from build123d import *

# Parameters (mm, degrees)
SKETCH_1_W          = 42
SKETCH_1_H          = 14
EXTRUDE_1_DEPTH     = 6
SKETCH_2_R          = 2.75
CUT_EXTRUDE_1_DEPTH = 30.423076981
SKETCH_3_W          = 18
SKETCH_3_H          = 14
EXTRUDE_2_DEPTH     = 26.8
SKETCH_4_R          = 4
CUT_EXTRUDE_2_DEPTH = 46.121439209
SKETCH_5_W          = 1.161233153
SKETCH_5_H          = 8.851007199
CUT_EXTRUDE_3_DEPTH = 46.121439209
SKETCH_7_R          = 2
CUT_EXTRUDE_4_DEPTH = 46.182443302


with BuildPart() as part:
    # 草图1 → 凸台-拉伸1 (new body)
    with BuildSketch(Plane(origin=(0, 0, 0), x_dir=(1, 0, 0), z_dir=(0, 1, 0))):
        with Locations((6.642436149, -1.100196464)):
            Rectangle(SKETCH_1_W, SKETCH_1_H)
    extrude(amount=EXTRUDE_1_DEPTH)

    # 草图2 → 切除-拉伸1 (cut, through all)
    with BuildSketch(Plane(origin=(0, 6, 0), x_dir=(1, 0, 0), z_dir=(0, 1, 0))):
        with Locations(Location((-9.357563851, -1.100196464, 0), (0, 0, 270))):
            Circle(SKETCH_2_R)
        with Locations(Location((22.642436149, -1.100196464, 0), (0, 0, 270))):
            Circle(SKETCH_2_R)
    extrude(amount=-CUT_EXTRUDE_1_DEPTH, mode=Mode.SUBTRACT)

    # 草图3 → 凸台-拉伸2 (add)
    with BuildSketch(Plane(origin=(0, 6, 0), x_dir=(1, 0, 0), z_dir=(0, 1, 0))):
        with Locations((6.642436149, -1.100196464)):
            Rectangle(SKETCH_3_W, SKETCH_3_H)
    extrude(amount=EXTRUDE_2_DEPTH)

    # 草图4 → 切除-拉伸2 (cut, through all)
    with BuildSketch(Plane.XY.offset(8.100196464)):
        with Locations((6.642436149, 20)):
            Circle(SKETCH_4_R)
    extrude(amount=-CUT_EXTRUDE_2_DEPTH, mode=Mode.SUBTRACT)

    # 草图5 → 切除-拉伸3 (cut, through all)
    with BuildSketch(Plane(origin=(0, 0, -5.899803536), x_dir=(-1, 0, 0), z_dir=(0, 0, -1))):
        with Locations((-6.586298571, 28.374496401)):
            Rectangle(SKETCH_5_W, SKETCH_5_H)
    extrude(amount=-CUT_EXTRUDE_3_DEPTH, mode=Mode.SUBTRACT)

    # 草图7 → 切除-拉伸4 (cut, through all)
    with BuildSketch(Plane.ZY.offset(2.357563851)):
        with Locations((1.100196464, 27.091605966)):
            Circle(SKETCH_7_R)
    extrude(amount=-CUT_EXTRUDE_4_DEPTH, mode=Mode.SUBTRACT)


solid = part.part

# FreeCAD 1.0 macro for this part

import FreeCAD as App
import Part
import Sketcher

V = App.Vector


def add_polygon(sketch, points):
    """Adds a closed chain of lines whose ends are joined by coincident constraints."""
    first, n = sketch.GeometryCount, len(points)
    for a, b in zip(points, points[1:] + points[:1]):
        sketch.addGeometry(Part.LineSegment(App.Vector(*a, 0), App.Vector(*b, 0)), False)
    for i in range(n):
        sketch.addConstraint(Sketcher.Constraint("Coincident", first + i, 2, first + (i + 1) % n, 1))

doc = App.newDocument("Part")
body = doc.addObject("PartDesign::Body", "Body")

# Sketch on XZ plane
sketch1 = doc.addObject("Sketcher::SketchObject", "Sketch")
body.addObject(sketch1)
sketch1.AttachmentSupport = (doc.XZ_Plane, [""])
sketch1.MapMode = "FlatFace"
add_polygon(sketch1, [(-14, -6), (-14, 8), (28, 8), (28, -6)])  # lines 0-3
sketch1.addConstraint([
    Sketcher.Constraint("Vertical", 0),
    Sketcher.Constraint("Horizontal", 1),
    Sketcher.Constraint("Vertical", 2),
    Sketcher.Constraint("Horizontal", 3),
    Sketcher.Constraint("DistanceX", 1, 1, 1, 2, 42.0),
    Sketcher.Constraint("DistanceY", 0, 1, 0, 2, 14.0),
    Sketcher.Constraint("DistanceX", 0, 2, -1, 1, 14.357564),
    Sketcher.Constraint("DistanceY", -1, 1, 0, 2, 8.100196),
])
pad1 = doc.addObject("PartDesign::Pad", "Pad")
body.addObject(pad1)
pad1.Profile = sketch1
pad1.Length = 6
pad1.Reversed = True

# Sketch on XZ plane
sketch2 = doc.addObject("Sketcher::SketchObject", "Sketch001")
body.addObject(sketch2)
sketch2.AttachmentSupport = (doc.XZ_Plane, [""])
sketch2.MapMode = "FlatFace"
sketch2.AttachmentOffset = App.Placement(V(0, 0, -6), App.Rotation())
sketch2.addGeometry([
    Part.Circle(V(-9.4, 1.1, 0), V(0, 0, 1), 2.8),
    Part.Circle(V(22.6, 1.1, 0), V(0, 0, 1), 2.8),
], False)
sketch2.addConstraint([
    Sketcher.Constraint("Equal", 0, 1),
    Sketcher.Constraint("Horizontal", 0, 3, 1, 3),
    Sketcher.Constraint("Diameter", 0, 5.5),
    Sketcher.Constraint("DistanceX", 0, 3, 1, 3, 32.0),
    Sketcher.Constraint("DistanceX", 0, 3, -1, 1, 9.357564),
    Sketcher.Constraint("DistanceY", -1, 1, 0, 3, 1.100196),
])
pocket1 = doc.addObject("PartDesign::Pocket", "Pocket")
body.addObject(pocket1)
pocket1.Profile = sketch2
pocket1.Type = "ThroughAll"
pocket1.Reversed = True

# Sketch on XZ plane
sketch3 = doc.addObject("Sketcher::SketchObject", "Sketch002")
body.addObject(sketch3)
sketch3.AttachmentSupport = (doc.XZ_Plane, [""])
sketch3.MapMode = "FlatFace"
sketch3.AttachmentOffset = App.Placement(V(0, 0, -6), App.Rotation())
add_polygon(sketch3, [(-2, -6), (-2, 8), (16, 8), (16, -6)])  # lines 0-3
sketch3.addConstraint([
    Sketcher.Constraint("Vertical", 0),
    Sketcher.Constraint("Horizontal", 1),
    Sketcher.Constraint("Vertical", 2),
    Sketcher.Constraint("Horizontal", 3),
    Sketcher.Constraint("DistanceX", 1, 1, 1, 2, 18.0),
    Sketcher.Constraint("DistanceY", 0, 1, 0, 2, 14.0),
    Sketcher.Constraint("DistanceX", 0, 2, -1, 1, 2.357564),
    Sketcher.Constraint("DistanceY", -1, 1, 0, 2, 8.100196),
])
pad2 = doc.addObject("PartDesign::Pad", "Pad001")
body.addObject(pad2)
pad2.Profile = sketch3
pad2.Length = 26.8
pad2.Reversed = True

# Sketch on XY plane
sketch4 = doc.addObject("Sketcher::SketchObject", "Sketch003")
body.addObject(sketch4)
sketch4.AttachmentSupport = (doc.XY_Plane, [""])
sketch4.MapMode = "FlatFace"
sketch4.AttachmentOffset = App.Placement(V(0, 0, 8.100196), App.Rotation())
sketch4.addGeometry(Part.Circle(V(6.6, 20, 0), V(0, 0, 1), 4), False)
sketch4.addConstraint([
    Sketcher.Constraint("Diameter", 0, 8.0),
    Sketcher.Constraint("DistanceY", -1, 1, 0, 3, 20.0),
    Sketcher.Constraint("DistanceX", -1, 1, 0, 3, 6.642436),
])
pocket2 = doc.addObject("PartDesign::Pocket", "Pocket001")
body.addObject(pocket2)
pocket2.Profile = sketch4
pocket2.Type = "ThroughAll"

# Sketch on XY plane
sketch5 = doc.addObject("Sketcher::SketchObject", "Sketch004")
body.addObject(sketch5)
sketch5.AttachmentSupport = (doc.XY_Plane, [""])
sketch5.MapMode = "FlatFace"
sketch5.AttachmentOffset = App.Placement(V(0, 0, -5.899804), App.Rotation())
add_polygon(sketch5, [(7.2, 32.8), (7.2, 23.9), (6, 23.9), (6, 32.8)])  # lines 0-3
sketch5.addConstraint([
    Sketcher.Constraint("Vertical", 0),
    Sketcher.Constraint("Horizontal", 1),
    Sketcher.Constraint("Vertical", 2),
    Sketcher.Constraint("Horizontal", 3),
    Sketcher.Constraint("DistanceY", -1, 1, 2, 2, 32.8),
    Sketcher.Constraint("DistanceX", 1, 2, 1, 1, 1.161233),
    Sketcher.Constraint("DistanceY", 0, 2, 0, 1, 8.851007),
    Sketcher.Constraint("DistanceX", -1, 1, 1, 2, 6.005682),
])
pocket3 = doc.addObject("PartDesign::Pocket", "Pocket002")
body.addObject(pocket3)
pocket3.Profile = sketch5
pocket3.Type = "ThroughAll"
pocket3.Reversed = True

# Sketch on YZ plane
sketch6 = doc.addObject("Sketcher::SketchObject", "Sketch005")
body.addObject(sketch6)
sketch6.AttachmentSupport = (doc.YZ_Plane, [""])
sketch6.MapMode = "FlatFace"
sketch6.AttachmentOffset = App.Placement(V(0, 0, -2.357564), App.Rotation())
sketch6.addGeometry(Part.Circle(V(27.1, 1.1, 0), V(0, 0, 1), 2), False)
sketch6.addConstraint([
    Sketcher.Constraint("Diameter", 0, 4.0),
    Sketcher.Constraint("DistanceX", -1, 1, 0, 3, 27.091606),
    Sketcher.Constraint("DistanceY", -1, 1, 0, 3, 1.100196),
])
pocket4 = doc.addObject("PartDesign::Pocket", "Pocket003")
body.addObject(pocket4)
pocket4.Profile = sketch6
pocket4.Type = "ThroughAll"
pocket4.Reversed = True

doc.recompute()
